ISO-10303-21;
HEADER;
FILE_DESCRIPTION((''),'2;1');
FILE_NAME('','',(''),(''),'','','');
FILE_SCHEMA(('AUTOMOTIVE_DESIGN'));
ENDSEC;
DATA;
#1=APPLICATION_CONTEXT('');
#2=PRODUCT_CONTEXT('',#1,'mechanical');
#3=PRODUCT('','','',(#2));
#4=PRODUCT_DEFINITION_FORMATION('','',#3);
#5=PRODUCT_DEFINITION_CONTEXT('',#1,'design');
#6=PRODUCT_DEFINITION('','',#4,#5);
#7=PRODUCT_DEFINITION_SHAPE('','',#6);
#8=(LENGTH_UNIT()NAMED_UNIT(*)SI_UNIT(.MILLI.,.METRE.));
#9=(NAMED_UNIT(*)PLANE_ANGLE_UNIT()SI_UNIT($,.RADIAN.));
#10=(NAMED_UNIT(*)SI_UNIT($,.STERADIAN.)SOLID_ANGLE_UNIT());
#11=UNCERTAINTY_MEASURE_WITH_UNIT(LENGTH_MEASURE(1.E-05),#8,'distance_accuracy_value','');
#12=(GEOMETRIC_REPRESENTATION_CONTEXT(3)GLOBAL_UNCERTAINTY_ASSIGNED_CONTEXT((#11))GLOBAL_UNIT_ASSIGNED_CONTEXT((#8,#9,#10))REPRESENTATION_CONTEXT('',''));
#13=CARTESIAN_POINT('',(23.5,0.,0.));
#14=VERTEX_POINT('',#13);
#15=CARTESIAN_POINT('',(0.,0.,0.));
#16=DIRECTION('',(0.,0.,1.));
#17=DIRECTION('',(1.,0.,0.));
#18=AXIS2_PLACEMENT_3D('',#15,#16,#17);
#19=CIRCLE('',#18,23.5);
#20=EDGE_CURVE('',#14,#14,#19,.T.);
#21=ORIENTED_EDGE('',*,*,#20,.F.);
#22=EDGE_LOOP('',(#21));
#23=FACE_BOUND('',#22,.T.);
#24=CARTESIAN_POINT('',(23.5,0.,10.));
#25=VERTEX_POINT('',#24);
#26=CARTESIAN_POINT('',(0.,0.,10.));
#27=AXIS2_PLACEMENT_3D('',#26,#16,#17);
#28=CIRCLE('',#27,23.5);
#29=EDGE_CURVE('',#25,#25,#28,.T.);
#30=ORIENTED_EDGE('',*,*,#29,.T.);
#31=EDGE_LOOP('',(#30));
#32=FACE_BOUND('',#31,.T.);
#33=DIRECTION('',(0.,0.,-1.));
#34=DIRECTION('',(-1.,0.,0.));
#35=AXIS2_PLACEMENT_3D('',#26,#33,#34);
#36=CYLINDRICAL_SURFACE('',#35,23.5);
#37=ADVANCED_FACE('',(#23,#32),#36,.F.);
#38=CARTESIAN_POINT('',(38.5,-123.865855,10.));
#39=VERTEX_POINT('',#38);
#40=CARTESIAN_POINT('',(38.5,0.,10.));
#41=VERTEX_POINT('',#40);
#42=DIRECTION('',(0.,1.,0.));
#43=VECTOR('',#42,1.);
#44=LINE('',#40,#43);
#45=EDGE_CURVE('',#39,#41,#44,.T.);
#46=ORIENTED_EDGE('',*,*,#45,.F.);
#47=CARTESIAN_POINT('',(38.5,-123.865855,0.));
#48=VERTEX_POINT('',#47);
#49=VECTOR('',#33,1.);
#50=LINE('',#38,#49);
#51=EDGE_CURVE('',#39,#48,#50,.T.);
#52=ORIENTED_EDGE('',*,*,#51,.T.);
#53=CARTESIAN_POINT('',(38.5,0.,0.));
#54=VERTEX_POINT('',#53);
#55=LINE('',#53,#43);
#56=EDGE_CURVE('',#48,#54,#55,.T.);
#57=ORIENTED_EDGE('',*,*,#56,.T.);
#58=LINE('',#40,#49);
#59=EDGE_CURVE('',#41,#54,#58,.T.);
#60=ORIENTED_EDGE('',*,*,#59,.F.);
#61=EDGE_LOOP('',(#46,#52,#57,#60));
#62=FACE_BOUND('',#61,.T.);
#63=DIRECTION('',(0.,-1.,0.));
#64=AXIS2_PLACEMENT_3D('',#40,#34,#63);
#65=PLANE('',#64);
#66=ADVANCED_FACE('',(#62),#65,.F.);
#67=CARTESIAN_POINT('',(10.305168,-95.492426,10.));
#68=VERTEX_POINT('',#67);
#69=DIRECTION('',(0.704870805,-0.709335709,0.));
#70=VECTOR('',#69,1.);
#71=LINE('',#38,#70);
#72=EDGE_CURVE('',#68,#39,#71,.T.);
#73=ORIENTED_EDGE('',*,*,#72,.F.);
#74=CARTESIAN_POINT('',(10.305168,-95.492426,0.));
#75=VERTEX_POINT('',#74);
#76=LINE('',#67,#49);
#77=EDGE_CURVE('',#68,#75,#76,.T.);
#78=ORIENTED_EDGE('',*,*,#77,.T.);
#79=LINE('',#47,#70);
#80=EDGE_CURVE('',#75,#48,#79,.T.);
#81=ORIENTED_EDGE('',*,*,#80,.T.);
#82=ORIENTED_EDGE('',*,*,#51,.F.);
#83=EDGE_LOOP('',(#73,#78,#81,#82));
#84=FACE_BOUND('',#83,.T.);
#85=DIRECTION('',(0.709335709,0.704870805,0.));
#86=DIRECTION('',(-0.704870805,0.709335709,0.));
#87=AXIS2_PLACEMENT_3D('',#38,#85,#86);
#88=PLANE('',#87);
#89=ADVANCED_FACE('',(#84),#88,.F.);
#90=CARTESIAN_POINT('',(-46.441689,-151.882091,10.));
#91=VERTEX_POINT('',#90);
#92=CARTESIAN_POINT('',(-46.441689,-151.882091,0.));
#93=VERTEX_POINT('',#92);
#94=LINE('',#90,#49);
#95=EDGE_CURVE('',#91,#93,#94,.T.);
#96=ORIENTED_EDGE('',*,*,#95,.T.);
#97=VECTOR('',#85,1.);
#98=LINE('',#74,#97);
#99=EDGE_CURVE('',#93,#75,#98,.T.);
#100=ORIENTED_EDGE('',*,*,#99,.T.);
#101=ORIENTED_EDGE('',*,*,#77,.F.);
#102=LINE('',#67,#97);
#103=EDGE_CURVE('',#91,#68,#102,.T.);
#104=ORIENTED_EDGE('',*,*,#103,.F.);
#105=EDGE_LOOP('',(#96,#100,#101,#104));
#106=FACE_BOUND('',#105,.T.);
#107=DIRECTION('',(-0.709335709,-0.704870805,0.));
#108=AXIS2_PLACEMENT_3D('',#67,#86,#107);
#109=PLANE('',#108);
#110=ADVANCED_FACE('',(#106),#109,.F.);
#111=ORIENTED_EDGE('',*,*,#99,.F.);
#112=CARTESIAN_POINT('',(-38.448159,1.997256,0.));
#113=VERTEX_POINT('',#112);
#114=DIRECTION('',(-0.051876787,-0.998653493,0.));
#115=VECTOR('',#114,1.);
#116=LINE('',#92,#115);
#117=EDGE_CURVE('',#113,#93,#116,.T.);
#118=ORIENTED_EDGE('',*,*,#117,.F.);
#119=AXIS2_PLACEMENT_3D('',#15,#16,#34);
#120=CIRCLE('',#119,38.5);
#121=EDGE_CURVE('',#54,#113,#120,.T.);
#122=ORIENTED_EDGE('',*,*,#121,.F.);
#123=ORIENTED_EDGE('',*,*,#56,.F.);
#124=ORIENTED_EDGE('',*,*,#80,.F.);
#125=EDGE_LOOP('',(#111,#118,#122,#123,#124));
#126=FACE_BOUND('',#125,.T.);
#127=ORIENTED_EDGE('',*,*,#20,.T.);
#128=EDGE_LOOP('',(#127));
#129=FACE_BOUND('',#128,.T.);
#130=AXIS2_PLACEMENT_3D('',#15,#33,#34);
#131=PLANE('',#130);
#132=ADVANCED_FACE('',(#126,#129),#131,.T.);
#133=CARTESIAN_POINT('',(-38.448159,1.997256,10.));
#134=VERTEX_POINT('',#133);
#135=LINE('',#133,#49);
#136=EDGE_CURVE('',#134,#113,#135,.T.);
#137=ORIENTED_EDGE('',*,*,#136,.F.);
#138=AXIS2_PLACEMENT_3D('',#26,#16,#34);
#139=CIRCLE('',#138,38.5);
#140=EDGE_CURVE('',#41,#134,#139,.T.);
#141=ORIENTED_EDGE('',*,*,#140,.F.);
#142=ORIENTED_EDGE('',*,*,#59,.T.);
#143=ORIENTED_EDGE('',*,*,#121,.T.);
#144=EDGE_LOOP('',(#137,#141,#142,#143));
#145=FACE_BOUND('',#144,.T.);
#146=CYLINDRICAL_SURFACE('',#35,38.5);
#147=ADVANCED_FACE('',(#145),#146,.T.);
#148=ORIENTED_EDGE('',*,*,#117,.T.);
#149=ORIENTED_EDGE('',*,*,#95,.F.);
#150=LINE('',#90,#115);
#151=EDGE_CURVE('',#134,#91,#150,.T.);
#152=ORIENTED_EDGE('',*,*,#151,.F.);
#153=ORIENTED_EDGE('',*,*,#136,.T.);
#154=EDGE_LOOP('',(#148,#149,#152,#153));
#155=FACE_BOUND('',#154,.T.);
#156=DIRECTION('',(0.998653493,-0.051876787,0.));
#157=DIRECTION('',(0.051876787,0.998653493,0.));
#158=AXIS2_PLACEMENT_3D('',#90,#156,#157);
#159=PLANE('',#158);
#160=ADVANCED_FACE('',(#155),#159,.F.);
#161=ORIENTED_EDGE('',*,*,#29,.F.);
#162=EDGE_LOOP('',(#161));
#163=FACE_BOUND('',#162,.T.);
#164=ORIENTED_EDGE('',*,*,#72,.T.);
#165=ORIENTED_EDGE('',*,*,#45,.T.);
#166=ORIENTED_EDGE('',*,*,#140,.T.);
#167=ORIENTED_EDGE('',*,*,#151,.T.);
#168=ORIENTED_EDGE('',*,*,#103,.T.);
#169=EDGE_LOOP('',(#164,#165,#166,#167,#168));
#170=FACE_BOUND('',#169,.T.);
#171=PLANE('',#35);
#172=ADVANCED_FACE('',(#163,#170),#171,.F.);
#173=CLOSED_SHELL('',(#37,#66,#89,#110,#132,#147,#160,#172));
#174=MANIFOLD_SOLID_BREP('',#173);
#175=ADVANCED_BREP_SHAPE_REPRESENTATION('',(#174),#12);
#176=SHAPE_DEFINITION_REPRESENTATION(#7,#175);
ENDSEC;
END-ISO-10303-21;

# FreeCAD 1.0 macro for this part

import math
import FreeCAD as App
import Part
import Sketcher

V = App.Vector
Q = App.Units.Quantity

doc = App.newDocument("Part")
body = doc.addObject("PartDesign::Body", "Body")

# Sketch on XY plane
sketch1 = body.newObject("Sketcher::SketchObject", "Sketch")
sketch1.AttachmentSupport = (doc.getObject("XY_Plane"), [""])
sketch1.MapMode = "FlatFace"
sketch1.addGeometry([
    Part.LineSegment(V(38.5, -123.865855, 0), V(38.5, 0, 0)),  # 0
    Part.ArcOfCircle(Part.Circle(V(0, 0, 0), V(0, 0, 1), 38.5), math.radians(0), math.radians(177.026344)),  # 1
    Part.LineSegment(V(-38.448159, 1.997256, 0), V(-46.441689, -151.882091, 0)),  # 2
    Part.LineSegment(V(-46.441689, -151.882091, 0), V(10.305168, -95.492426, 0)),  # 3
    Part.LineSegment(V(10.305168, -95.492426, 0), V(38.5, -123.865855, 0)),  # 4
    Part.Circle(V(0, 0, 0), V(0, 0, 1), 23.5),  # 5
], False)
sketch1.addConstraint([
    Sketcher.Constraint("Tangent", 0, 2, 1, 1),
    Sketcher.Constraint("Tangent", 1, 2, 2, 1),
    Sketcher.Constraint("Coincident", 2, 2, 3, 1),
    Sketcher.Constraint("Coincident", 3, 2, 4, 1),
    Sketcher.Constraint("Coincident", 4, 2, 0, 1),
    Sketcher.Constraint("Vertical", 0),
    Sketcher.Constraint("Coincident", 1, 3, -1, 1),
    Sketcher.Constraint("Coincident", 5, 3, -1, 1),
    Sketcher.Constraint("Perpendicular", 3, 4),
    Sketcher.Constraint("Diameter", 5, Q("47 mm")),
    Sketcher.Constraint("Radius", 1, Q("38.5 mm")),
    Sketcher.Constraint("Distance", 3, Q("80 mm")),
    Sketcher.Constraint("Distance", 4, Q("40 mm")),
    Sketcher.Constraint("DistanceY", 0, 1, 0, 2, Q("123.865855 mm")),
    Sketcher.Constraint("DistanceX", 2, 2, -1, 1, Q("46.441689 mm")),
])
pad1 = body.newObject("PartDesign::Pad", "Pad")
pad1.Profile = sketch1
pad1.Length = 10

doc.recompute()
